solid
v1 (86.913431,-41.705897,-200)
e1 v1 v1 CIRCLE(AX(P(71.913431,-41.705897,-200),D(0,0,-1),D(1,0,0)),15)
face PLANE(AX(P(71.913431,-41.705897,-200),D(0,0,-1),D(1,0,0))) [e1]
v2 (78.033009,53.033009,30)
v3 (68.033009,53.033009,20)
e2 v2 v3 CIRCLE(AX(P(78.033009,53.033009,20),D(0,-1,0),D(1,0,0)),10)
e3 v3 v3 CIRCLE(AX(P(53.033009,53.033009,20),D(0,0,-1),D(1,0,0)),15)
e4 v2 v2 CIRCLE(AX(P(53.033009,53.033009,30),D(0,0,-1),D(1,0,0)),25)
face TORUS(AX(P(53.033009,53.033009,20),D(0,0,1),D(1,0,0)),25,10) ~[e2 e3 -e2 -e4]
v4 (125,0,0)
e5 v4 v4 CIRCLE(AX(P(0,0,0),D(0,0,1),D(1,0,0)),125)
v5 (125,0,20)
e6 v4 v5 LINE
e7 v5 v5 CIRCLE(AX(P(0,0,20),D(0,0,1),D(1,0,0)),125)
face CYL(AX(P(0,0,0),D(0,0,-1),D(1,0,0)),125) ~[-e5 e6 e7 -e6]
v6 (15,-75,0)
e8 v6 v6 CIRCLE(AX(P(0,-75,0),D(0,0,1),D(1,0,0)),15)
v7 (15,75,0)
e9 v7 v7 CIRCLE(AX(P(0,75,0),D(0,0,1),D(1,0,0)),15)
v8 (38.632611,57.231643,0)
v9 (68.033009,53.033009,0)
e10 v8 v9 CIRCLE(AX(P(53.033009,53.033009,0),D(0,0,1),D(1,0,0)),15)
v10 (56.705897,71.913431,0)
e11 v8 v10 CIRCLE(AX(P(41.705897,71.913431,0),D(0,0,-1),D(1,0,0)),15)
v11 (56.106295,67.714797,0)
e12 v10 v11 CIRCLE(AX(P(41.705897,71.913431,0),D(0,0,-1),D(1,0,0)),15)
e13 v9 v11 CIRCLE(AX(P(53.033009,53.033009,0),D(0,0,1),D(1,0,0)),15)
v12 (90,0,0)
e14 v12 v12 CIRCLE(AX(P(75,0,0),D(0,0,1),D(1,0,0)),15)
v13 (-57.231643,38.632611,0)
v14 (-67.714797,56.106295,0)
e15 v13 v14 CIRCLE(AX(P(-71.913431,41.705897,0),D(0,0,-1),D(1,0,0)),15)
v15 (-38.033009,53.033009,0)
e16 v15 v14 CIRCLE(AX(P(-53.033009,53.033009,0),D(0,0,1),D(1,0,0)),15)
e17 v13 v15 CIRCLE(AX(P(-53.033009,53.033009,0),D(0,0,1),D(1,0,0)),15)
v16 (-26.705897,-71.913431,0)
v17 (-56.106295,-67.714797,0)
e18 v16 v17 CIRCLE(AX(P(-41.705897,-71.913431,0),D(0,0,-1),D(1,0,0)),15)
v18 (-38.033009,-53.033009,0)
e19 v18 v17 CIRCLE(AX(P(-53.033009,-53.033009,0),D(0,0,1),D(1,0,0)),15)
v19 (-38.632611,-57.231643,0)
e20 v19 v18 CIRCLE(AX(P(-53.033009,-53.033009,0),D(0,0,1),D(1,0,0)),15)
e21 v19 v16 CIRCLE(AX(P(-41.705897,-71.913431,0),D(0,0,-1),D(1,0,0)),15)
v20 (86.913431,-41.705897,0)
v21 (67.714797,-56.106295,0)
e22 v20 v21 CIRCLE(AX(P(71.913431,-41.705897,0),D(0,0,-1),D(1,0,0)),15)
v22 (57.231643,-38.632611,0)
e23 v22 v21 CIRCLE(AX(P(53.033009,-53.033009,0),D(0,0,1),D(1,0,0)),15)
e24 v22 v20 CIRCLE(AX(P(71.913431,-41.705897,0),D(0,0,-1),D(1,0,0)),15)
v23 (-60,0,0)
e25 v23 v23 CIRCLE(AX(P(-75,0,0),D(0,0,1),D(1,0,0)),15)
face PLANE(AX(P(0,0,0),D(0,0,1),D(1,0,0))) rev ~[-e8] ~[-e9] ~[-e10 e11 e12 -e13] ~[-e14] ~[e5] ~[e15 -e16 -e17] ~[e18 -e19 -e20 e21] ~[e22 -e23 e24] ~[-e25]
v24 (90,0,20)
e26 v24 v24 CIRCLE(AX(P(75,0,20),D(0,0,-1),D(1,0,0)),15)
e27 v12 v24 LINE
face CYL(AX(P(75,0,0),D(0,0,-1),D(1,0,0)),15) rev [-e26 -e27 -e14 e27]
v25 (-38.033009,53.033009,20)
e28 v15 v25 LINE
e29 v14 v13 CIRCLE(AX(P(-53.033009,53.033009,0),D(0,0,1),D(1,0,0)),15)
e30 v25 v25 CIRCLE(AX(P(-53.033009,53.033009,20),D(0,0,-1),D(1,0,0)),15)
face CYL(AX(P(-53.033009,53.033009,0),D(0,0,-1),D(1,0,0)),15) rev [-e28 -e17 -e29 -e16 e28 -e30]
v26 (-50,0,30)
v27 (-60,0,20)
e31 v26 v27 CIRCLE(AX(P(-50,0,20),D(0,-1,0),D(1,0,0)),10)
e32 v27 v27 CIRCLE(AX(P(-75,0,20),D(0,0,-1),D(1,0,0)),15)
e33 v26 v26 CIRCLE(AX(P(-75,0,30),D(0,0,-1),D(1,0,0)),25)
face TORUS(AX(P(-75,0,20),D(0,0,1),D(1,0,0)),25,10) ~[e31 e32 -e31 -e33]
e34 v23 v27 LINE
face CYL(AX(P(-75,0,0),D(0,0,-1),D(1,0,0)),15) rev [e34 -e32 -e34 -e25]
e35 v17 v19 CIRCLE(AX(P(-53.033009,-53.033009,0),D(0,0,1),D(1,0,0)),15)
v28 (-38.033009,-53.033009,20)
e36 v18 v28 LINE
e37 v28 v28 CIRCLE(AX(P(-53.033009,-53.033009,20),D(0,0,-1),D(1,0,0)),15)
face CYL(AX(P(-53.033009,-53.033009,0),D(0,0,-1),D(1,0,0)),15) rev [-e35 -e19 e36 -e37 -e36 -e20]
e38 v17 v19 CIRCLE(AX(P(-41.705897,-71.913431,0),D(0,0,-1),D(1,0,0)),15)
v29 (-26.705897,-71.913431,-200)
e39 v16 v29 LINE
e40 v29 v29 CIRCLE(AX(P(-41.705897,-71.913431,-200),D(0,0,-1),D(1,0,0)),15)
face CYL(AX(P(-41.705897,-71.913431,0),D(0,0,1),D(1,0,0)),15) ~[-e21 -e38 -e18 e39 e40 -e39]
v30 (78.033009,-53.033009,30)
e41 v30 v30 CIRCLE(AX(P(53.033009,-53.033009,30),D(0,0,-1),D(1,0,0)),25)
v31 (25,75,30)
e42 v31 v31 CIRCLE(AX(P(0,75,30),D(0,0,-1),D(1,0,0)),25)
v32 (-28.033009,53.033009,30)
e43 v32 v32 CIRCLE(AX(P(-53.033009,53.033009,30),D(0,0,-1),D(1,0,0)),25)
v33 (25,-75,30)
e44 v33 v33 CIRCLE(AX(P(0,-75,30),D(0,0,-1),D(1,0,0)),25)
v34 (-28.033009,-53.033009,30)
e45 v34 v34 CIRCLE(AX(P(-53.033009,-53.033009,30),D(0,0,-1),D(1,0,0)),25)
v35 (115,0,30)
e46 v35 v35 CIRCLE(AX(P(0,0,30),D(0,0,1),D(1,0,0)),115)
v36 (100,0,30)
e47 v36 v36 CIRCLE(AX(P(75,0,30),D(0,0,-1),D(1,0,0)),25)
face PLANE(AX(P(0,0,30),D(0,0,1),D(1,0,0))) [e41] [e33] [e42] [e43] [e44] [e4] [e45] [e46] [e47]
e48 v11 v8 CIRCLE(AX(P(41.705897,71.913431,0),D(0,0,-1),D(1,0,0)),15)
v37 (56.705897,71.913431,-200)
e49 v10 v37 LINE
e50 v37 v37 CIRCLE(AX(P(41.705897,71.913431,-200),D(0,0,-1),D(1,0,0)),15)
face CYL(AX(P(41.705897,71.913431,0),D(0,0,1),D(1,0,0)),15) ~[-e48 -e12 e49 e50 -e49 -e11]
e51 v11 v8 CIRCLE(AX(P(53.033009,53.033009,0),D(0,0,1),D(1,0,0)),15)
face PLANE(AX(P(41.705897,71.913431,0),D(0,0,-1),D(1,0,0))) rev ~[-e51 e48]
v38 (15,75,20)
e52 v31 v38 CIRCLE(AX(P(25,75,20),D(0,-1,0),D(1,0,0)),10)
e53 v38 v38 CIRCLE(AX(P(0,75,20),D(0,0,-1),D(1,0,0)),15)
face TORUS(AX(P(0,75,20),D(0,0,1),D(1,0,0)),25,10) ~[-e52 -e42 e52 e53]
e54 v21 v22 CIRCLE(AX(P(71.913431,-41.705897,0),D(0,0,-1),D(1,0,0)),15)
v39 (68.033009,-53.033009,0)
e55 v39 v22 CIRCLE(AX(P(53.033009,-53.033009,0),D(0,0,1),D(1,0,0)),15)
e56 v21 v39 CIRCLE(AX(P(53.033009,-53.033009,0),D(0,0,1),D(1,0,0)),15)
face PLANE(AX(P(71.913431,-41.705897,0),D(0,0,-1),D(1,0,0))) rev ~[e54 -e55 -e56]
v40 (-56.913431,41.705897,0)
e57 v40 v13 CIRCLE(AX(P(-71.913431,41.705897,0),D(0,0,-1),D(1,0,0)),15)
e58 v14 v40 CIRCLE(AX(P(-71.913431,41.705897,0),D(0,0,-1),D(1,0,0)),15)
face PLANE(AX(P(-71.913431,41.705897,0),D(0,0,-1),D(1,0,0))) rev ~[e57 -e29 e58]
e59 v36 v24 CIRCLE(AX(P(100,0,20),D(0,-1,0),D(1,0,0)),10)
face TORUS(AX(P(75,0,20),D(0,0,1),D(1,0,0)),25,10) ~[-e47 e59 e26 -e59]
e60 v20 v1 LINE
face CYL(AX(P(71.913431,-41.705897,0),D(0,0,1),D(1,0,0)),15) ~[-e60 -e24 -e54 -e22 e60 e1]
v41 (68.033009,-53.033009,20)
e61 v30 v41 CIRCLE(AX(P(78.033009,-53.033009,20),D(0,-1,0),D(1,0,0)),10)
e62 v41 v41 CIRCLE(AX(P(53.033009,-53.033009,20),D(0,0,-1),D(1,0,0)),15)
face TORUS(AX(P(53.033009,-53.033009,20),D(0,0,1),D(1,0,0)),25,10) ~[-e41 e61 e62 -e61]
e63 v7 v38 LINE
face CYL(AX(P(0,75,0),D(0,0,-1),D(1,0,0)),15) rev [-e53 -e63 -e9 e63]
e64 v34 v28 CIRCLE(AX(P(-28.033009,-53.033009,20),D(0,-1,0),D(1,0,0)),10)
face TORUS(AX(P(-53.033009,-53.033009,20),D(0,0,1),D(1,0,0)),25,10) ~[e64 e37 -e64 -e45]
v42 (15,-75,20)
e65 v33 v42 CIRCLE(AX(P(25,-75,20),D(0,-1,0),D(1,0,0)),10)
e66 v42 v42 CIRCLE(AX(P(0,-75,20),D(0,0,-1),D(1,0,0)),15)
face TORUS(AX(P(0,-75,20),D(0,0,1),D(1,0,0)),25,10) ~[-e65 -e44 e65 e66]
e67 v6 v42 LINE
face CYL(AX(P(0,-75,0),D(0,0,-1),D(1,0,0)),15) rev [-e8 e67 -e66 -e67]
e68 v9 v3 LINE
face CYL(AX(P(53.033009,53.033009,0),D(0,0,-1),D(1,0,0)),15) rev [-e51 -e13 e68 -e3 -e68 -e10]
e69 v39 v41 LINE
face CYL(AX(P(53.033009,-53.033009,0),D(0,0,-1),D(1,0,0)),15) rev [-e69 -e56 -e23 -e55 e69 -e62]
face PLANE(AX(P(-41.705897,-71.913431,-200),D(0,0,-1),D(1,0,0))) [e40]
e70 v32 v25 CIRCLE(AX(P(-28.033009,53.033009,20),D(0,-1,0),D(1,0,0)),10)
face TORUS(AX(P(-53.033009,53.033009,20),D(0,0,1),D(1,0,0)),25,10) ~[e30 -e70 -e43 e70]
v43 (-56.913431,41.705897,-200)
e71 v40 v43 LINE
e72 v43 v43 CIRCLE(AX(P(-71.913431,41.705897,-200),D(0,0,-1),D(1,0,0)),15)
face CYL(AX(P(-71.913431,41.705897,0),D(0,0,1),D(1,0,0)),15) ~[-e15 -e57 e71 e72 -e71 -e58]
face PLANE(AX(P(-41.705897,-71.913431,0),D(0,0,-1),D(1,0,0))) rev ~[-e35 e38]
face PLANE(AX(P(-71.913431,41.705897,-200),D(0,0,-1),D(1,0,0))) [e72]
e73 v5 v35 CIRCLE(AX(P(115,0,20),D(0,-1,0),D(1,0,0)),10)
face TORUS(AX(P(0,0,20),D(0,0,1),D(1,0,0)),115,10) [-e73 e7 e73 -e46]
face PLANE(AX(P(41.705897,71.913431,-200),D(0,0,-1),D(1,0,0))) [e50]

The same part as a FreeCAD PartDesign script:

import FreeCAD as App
import Part
import Sketcher


def edges_at(feature, points):
    """Names of the edges that pass closest to the given points."""
    edges = feature.Shape.Edges
    near = lambda p: min(range(len(edges)), key=lambda i: edges[i].distToShape(Part.Vertex(*p))[0])
    return sorted({f"Edge{near(p) + 1}" for p in points})

doc = App.newDocument("Part")
body = doc.addObject("PartDesign::Body", "Body")

# Sketch on XY plane
sketch1 = doc.addObject("Sketcher::SketchObject", "Sketch")
body.addObject(sketch1)
sketch1.AttachmentSupport = (doc.XY_Plane, [""])
sketch1.MapMode = "FlatFace"
sketch1.addGeometry(Part.Circle(App.Vector(0, 0, 0), App.Vector(0, 0, 1), 125), False)
sketch1.addConstraint([
    Sketcher.Constraint("Coincident", 0, 3, -1, 1),
    Sketcher.Constraint("Diameter", 0, 250.0),
])
pad1 = doc.addObject("PartDesign::Pad", "Pad")
body.addObject(pad1)
pad1.Profile = sketch1
pad1.Length = 30

# Sketch on XY plane
sketch2 = doc.addObject("Sketcher::SketchObject", "Sketch001")
body.addObject(sketch2)
sketch2.AttachmentSupport = (doc.XY_Plane, [""])
sketch2.MapMode = "FlatFace"
sketch2.addGeometry([
    Part.Circle(App.Vector(0, 75, 0), App.Vector(0, 0, 1), 15),  # 0
    Part.Circle(App.Vector(-53, 53, 0), App.Vector(0, 0, 1), 15),  # 1
    Part.Circle(App.Vector(-75, 0, 0), App.Vector(0, 0, 1), 15),  # 2
    Part.Circle(App.Vector(-53, -53, 0), App.Vector(0, 0, 1), 15),  # 3
    Part.Circle(App.Vector(0, -75, 0), App.Vector(0, 0, 1), 15),  # 4
    Part.Circle(App.Vector(53, -53, 0), App.Vector(0, 0, 1), 15),  # 5
    Part.Circle(App.Vector(75, 0, 0), App.Vector(0, 0, 1), 15),  # 6
    Part.Circle(App.Vector(53, 53, 0), App.Vector(0, 0, 1), 15),  # 7
], False)
sketch2.addConstraint([
    Sketcher.Constraint("Equal", 0, 1),
    Sketcher.Constraint("Equal", 1, 2),
    Sketcher.Constraint("Equal", 2, 3),
    Sketcher.Constraint("Equal", 3, 4),
    Sketcher.Constraint("Equal", 4, 5),
    Sketcher.Constraint("Equal", 5, 6),
    Sketcher.Constraint("Equal", 6, 7),
    Sketcher.Constraint("Symmetric", 0, 3, 4, 3, -1, 1),
    Sketcher.Constraint("Symmetric", 1, 3, 5, 3, -1, 1),
    Sketcher.Constraint("Symmetric", 2, 3, 6, 3, -1, 1),
    Sketcher.Constraint("Symmetric", 3, 3, 7, 3, -1, 1),
    Sketcher.Constraint("Symmetric", 3, 3, 5, 3, -2),
    Sketcher.Constraint("PointOnObject", 0, 3, -2),
    Sketcher.Constraint("PointOnObject", 2, 3, -1),
    Sketcher.Constraint("Diameter", 0, 30.0),
    Sketcher.Constraint("DistanceY", -1, 1, 0, 3, 75.0),
    Sketcher.Constraint("DistanceX", 2, 3, -1, 1, 75.0),
    Sketcher.Constraint("DistanceX", 1, 3, -1, 1, 53.033009),
    Sketcher.Constraint("DistanceY", -1, 1, 1, 3, 53.033009),
])
pocket1 = doc.addObject("PartDesign::Pocket", "Pocket")
body.addObject(pocket1)
pocket1.Profile = sketch2
pocket1.Length = 265
pocket1.Reversed = True
doc.recompute()

fillet = doc.addObject("PartDesign::Fillet", "Fillet")
body.addObject(fillet)
fillet.Base = (pocket1, edges_at(pocket1, [
    (-125, 0, 30),
    (-68.033, -53.033, 30),
    (-15, -75, 30),
    (38.033, -53.033, 30),
    (-90, 0, 30),
    (-68.033, 53.033, 30),
    (60, 0, 30),
    (-15, 75, 30),
    (38.033, 53.033, 30),
]))
fillet.Radius = 10

# Sketch on XY plane
sketch3 = doc.addObject("Sketcher::SketchObject", "Sketch002")
body.addObject(sketch3)
sketch3.AttachmentSupport = (doc.XY_Plane, [""])
sketch3.MapMode = "FlatFace"
sketch3.addGeometry([
    Part.Circle(App.Vector(-42, -72, 0), App.Vector(0, 0, 1), 15),
    Part.Circle(App.Vector(-72, 42, 0), App.Vector(0, 0, 1), 15),
    Part.Circle(App.Vector(42, 72, 0), App.Vector(0, 0, 1), 15),
    Part.Circle(App.Vector(72, -42, 0), App.Vector(0, 0, 1), 15),
], False)
sketch3.addConstraint([
    Sketcher.Constraint("Equal", 0, 1),
    Sketcher.Constraint("Equal", 1, 2),
    Sketcher.Constraint("Equal", 2, 3),
    Sketcher.Constraint("Symmetric", 0, 3, 2, 3, -1, 1),
    Sketcher.Constraint("Symmetric", 1, 3, 3, 3, -1, 1),
    Sketcher.Constraint("Diameter", 0, 30.0),
    Sketcher.Constraint("DistanceY", 0, 3, -1, 1, 71.913431),
    Sketcher.Constraint("DistanceX", 1, 3, -1, 1, 71.913431),
    Sketcher.Constraint("DistanceX", 0, 3, -1, 1, 41.705897),
    Sketcher.Constraint("DistanceY", -1, 1, 1, 3, 41.705897),
])
pad2 = doc.addObject("PartDesign::Pad", "Pad001")
body.addObject(pad2)
pad2.Profile = sketch3
pad2.Length = 200
pad2.Reversed = True

doc.recompute()
